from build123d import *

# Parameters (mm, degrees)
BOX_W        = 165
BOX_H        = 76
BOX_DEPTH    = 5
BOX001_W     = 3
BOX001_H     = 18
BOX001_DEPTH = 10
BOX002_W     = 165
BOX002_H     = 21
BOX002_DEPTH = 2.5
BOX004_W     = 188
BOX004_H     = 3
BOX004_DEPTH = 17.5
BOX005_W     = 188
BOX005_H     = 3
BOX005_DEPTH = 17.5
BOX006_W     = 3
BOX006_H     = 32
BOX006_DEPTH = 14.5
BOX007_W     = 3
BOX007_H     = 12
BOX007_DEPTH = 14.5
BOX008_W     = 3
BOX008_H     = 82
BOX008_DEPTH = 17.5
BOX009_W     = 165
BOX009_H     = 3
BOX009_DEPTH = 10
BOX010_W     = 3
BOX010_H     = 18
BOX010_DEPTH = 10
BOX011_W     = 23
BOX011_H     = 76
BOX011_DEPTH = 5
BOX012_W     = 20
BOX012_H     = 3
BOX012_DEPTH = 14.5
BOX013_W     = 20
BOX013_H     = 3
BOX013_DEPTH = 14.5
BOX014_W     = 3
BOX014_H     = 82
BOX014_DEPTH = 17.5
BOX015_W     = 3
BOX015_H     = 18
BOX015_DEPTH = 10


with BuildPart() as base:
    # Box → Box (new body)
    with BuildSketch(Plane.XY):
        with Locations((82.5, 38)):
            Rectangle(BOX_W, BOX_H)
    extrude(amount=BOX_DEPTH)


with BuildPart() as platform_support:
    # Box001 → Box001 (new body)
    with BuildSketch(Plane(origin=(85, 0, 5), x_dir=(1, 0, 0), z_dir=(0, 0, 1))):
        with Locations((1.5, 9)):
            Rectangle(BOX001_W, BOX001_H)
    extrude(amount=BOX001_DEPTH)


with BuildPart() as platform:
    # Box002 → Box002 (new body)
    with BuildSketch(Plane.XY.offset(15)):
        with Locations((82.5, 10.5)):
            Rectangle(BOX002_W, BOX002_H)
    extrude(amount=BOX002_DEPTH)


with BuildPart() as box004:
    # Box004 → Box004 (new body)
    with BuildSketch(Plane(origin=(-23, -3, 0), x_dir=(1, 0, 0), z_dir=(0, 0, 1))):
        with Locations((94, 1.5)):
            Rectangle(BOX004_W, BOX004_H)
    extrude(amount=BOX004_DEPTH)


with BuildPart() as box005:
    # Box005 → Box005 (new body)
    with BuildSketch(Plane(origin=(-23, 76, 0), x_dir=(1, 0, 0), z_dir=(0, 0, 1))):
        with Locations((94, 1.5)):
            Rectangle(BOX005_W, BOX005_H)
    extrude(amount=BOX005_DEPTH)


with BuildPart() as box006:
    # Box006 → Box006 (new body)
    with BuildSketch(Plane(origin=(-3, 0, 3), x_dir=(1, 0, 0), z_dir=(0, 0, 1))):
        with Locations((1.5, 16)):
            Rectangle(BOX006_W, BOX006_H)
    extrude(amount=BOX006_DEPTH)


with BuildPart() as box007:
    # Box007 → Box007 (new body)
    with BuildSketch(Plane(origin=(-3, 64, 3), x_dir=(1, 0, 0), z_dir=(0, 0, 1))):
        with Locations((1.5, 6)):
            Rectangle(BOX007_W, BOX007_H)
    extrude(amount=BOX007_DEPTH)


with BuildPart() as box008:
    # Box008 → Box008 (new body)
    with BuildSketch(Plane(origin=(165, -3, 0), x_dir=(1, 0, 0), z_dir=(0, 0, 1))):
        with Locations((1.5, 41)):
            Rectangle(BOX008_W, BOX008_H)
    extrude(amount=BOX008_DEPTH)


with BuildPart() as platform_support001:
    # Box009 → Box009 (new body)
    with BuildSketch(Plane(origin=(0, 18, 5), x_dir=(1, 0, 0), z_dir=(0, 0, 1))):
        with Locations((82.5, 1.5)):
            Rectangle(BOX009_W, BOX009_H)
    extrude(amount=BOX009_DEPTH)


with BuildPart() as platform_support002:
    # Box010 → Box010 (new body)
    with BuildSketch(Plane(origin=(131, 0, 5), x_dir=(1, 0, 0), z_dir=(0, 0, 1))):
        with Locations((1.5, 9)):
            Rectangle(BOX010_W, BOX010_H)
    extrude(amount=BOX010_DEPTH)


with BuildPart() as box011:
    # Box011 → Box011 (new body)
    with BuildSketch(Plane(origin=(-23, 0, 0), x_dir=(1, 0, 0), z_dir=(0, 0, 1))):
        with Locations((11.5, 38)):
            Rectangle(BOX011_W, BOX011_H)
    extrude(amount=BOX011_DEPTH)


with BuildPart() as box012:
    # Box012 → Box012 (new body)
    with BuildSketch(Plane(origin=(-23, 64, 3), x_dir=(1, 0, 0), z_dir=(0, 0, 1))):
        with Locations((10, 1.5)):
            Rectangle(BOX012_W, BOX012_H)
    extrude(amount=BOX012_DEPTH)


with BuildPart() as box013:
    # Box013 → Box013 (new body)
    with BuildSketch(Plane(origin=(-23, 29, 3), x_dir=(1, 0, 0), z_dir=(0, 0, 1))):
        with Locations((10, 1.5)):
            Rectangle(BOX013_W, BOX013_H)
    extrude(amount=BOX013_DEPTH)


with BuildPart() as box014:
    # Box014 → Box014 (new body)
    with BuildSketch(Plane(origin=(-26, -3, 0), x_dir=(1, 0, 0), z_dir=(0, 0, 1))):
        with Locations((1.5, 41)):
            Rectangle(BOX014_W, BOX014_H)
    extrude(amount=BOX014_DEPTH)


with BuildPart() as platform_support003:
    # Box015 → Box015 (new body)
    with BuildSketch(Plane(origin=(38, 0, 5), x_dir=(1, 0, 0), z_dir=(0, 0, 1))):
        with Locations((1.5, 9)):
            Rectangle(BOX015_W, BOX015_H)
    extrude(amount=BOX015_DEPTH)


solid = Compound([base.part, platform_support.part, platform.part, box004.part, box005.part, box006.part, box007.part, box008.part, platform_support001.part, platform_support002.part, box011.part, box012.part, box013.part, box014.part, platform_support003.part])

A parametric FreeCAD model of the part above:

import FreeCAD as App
import Part
import Sketcher
Q = App.Units.Quantity

doc = App.newDocument("Part")
body = doc.addObject("PartDesign::Body", "Body")

sketch1 = body.newObject("Sketcher::SketchObject", "Sketch")
sketch1.AttachmentSupport = (doc.getObject("XY_Plane"), [""])
sketch1.MapMode = "FlatFace"
sketch1.addGeometry([
    Part.LineSegment(App.Vector(0, 76, 0), App.Vector(0, 0, 0)),
    Part.LineSegment(App.Vector(0, 0, 0), App.Vector(165, 0, 0)),
    Part.LineSegment(App.Vector(165, 0, 0), App.Vector(165, 76, 0)),
    Part.LineSegment(App.Vector(165, 76, 0), App.Vector(0, 76, 0)),
], False)
sketch1.addConstraint([
    Sketcher.Constraint("Coincident", 0, 2, 1, 1),
    Sketcher.Constraint("Coincident", 1, 2, 2, 1),
    Sketcher.Constraint("Coincident", 2, 2, 3, 1),
    Sketcher.Constraint("Coincident", 3, 2, 0, 1),
    Sketcher.Constraint("Vertical", 0),
    Sketcher.Constraint("Horizontal", 1),
    Sketcher.Constraint("Vertical", 2),
    Sketcher.Constraint("Horizontal", 3),
    Sketcher.Constraint("Coincident", 0, 2, -1, 1),
    Sketcher.Constraint("DistanceX", 1, 1, 1, 2, Q("165 mm")),
    Sketcher.Constraint("DistanceY", 0, 2, 0, 1, Q("76 mm")),
])
pad1 = body.newObject("PartDesign::Pad", "Pad")
pad1.Profile = sketch1
pad1.Length = 5
body2 = doc.addObject("PartDesign::Body", "Body001")

sketch2 = body2.newObject("Sketcher::SketchObject", "Sketch001")
sketch2.AttachmentSupport = (doc.getObject("XY_Plane001"), [""])
sketch2.MapMode = "FlatFace"
sketch2.AttachmentOffset = App.Placement(App.Vector(0, 0, 5), App.Rotation())
sketch2.addGeometry([
    Part.LineSegment(App.Vector(85, 18, 0), App.Vector(85, 0, 0)),
    Part.LineSegment(App.Vector(85, 0, 0), App.Vector(88, 0, 0)),
    Part.LineSegment(App.Vector(88, 0, 0), App.Vector(88, 18, 0)),
    Part.LineSegment(App.Vector(88, 18, 0), App.Vector(85, 18, 0)),
], False)
sketch2.addConstraint([
    Sketcher.Constraint("Coincident", 0, 2, 1, 1),
    Sketcher.Constraint("Coincident", 1, 2, 2, 1),
    Sketcher.Constraint("Coincident", 2, 2, 3, 1),
    Sketcher.Constraint("Coincident", 3, 2, 0, 1),
    Sketcher.Constraint("Vertical", 0),
    Sketcher.Constraint("Horizontal", 1),
    Sketcher.Constraint("Vertical", 2),
    Sketcher.Constraint("Horizontal", 3),
    Sketcher.Constraint("PointOnObject", 0, 2, -1),
    Sketcher.Constraint("DistanceX", 1, 1, 1, 2, Q("3 mm")),
    Sketcher.Constraint("DistanceY", 0, 2, 0, 1, Q("18 mm")),
    Sketcher.Constraint("DistanceX", -1, 1, 0, 2, Q("85 mm")),
])
pad2 = body2.newObject("PartDesign::Pad", "Pad001")
pad2.Profile = sketch2
pad2.Length = 10
body3 = doc.addObject("PartDesign::Body", "Body002")

sketch3 = body3.newObject("Sketcher::SketchObject", "Sketch002")
sketch3.AttachmentSupport = (doc.getObject("XY_Plane002"), [""])
sketch3.MapMode = "FlatFace"
sketch3.AttachmentOffset = App.Placement(App.Vector(0, 0, 15), App.Rotation())
sketch3.addGeometry([
    Part.LineSegment(App.Vector(0, 21, 0), App.Vector(0, 0, 0)),
    Part.LineSegment(App.Vector(0, 0, 0), App.Vector(165, 0, 0)),
    Part.LineSegment(App.Vector(165, 0, 0), App.Vector(165, 21, 0)),
    Part.LineSegment(App.Vector(165, 21, 0), App.Vector(0, 21, 0)),
], False)
sketch3.addConstraint([
    Sketcher.Constraint("Coincident", 0, 2, 1, 1),
    Sketcher.Constraint("Coincident", 1, 2, 2, 1),
    Sketcher.Constraint("Coincident", 2, 2, 3, 1),
    Sketcher.Constraint("Coincident", 3, 2, 0, 1),
    Sketcher.Constraint("Vertical", 0),
    Sketcher.Constraint("Horizontal", 1),
    Sketcher.Constraint("Vertical", 2),
    Sketcher.Constraint("Horizontal", 3),
    Sketcher.Constraint("Coincident", 0, 2, -1, 1),
    Sketcher.Constraint("DistanceX", 1, 1, 1, 2, Q("165 mm")),
    Sketcher.Constraint("DistanceY", 0, 2, 0, 1, Q("21 mm")),
])
pad3 = body3.newObject("PartDesign::Pad", "Pad002")
pad3.Profile = sketch3
pad3.Length = 2.5
body4 = doc.addObject("PartDesign::Body", "Body003")

sketch4 = body4.newObject("Sketcher::SketchObject", "Sketch003")
sketch4.AttachmentSupport = (doc.getObject("XY_Plane003"), [""])
sketch4.MapMode = "FlatFace"
sketch4.addGeometry([
    Part.LineSegment(App.Vector(-23, 0, 0), App.Vector(-23, -3, 0)),
    Part.LineSegment(App.Vector(-23, -3, 0), App.Vector(165, -3, 0)),
    Part.LineSegment(App.Vector(165, -3, 0), App.Vector(165, 0, 0)),
    Part.LineSegment(App.Vector(165, 0, 0), App.Vector(-23, 0, 0)),
], False)
sketch4.addConstraint([
    Sketcher.Constraint("Coincident", 0, 2, 1, 1),
    Sketcher.Constraint("Coincident", 1, 2, 2, 1),
    Sketcher.Constraint("Coincident", 2, 2, 3, 1),
    Sketcher.Constraint("Coincident", 3, 2, 0, 1),
    Sketcher.Constraint("Vertical", 0),
    Sketcher.Constraint("Horizontal", 1),
    Sketcher.Constraint("Vertical", 2),
    Sketcher.Constraint("Horizontal", 3),
    Sketcher.Constraint("PointOnObject", 2, 2, -1),
    Sketcher.Constraint("DistanceX", 1, 1, 1, 2, Q("188 mm")),
    Sketcher.Constraint("DistanceY", 0, 2, 0, 1, Q("3 mm")),
    Sketcher.Constraint("DistanceX", 0, 2, -1, 1, Q("23 mm")),
])
pad4 = body4.newObject("PartDesign::Pad", "Pad003")
pad4.Profile = sketch4
pad4.Length = 17.5
body5 = doc.addObject("PartDesign::Body", "Body004")

sketch5 = body5.newObject("Sketcher::SketchObject", "Sketch004")
sketch5.AttachmentSupport = (doc.getObject("XY_Plane004"), [""])
sketch5.MapMode = "FlatFace"
sketch5.addGeometry([
    Part.LineSegment(App.Vector(-23, 79, 0), App.Vector(-23, 76, 0)),
    Part.LineSegment(App.Vector(-23, 76, 0), App.Vector(165, 76, 0)),
    Part.LineSegment(App.Vector(165, 76, 0), App.Vector(165, 79, 0)),
    Part.LineSegment(App.Vector(165, 79, 0), App.Vector(-23, 79, 0)),
], False)
sketch5.addConstraint([
    Sketcher.Constraint("Coincident", 0, 2, 1, 1),
    Sketcher.Constraint("Coincident", 1, 2, 2, 1),
    Sketcher.Constraint("Coincident", 2, 2, 3, 1),
    Sketcher.Constraint("Coincident", 3, 2, 0, 1),
    Sketcher.Constraint("Vertical", 0),
    Sketcher.Constraint("Horizontal", 1),
    Sketcher.Constraint("Vertical", 2),
    Sketcher.Constraint("Horizontal", 3),
    Sketcher.Constraint("DistanceX", 1, 1, 1, 2, Q("188 mm")),
    Sketcher.Constraint("DistanceY", 0, 2, 0, 1, Q("3 mm")),
    Sketcher.Constraint("DistanceX", 0, 2, -1, 1, Q("23 mm")),
    Sketcher.Constraint("DistanceY", -1, 1, 0, 2, Q("76 mm")),
])
pad5 = body5.newObject("PartDesign::Pad", "Pad004")
pad5.Profile = sketch5
pad5.Length = 17.5
body6 = doc.addObject("PartDesign::Body", "Body005")

sketch6 = body6.newObject("Sketcher::SketchObject", "Sketch005")
sketch6.AttachmentSupport = (doc.getObject("XY_Plane005"), [""])
sketch6.MapMode = "FlatFace"
sketch6.AttachmentOffset = App.Placement(App.Vector(0, 0, 3), App.Rotation())
sketch6.addGeometry([
    Part.LineSegment(App.Vector(-3, 32, 0), App.Vector(-3, 0, 0)),
    Part.LineSegment(App.Vector(-3, 0, 0), App.Vector(0, 0, 0)),
    Part.LineSegment(App.Vector(0, 0, 0), App.Vector(0, 32, 0)),
    Part.LineSegment(App.Vector(0, 32, 0), App.Vector(-3, 32, 0)),
], False)
sketch6.addConstraint([
    Sketcher.Constraint("Coincident", 0, 2, 1, 1),
    Sketcher.Constraint("Coincident", 1, 2, 2, 1),
    Sketcher.Constraint("Coincident", 2, 2, 3, 1),
    Sketcher.Constraint("Coincident", 3, 2, 0, 1),
    Sketcher.Constraint("Vertical", 0),
    Sketcher.Constraint("Horizontal", 1),
    Sketcher.Constraint("Vertical", 2),
    Sketcher.Constraint("Horizontal", 3),
    Sketcher.Constraint("Coincident", 1, 2, -1, 1),
    Sketcher.Constraint("DistanceX", 1, 1, 1, 2, Q("3 mm")),
    Sketcher.Constraint("DistanceY", 0, 2, 0, 1, Q("32 mm")),
])
pad6 = body6.newObject("PartDesign::Pad", "Pad005")
pad6.Profile = sketch6
pad6.Length = 14.5
body7 = doc.addObject("PartDesign::Body", "Body006")

sketch7 = body7.newObject("Sketcher::SketchObject", "Sketch006")
sketch7.AttachmentSupport = (doc.getObject("XY_Plane006"), [""])
sketch7.MapMode = "FlatFace"
sketch7.AttachmentOffset = App.Placement(App.Vector(0, 0, 3), App.Rotation())
sketch7.addGeometry([
    Part.LineSegment(App.Vector(-3, 76, 0), App.Vector(-3, 64, 0)),
    Part.LineSegment(App.Vector(-3, 64, 0), App.Vector(0, 64, 0)),
    Part.LineSegment(App.Vector(0, 64, 0), App.Vector(0, 76, 0)),
    Part.LineSegment(App.Vector(0, 76, 0), App.Vector(-3, 76, 0)),
], False)
sketch7.addConstraint([
    Sketcher.Constraint("Coincident", 0, 2, 1, 1),
    Sketcher.Constraint("Coincident", 1, 2, 2, 1),
    Sketcher.Constraint("Coincident", 2, 2, 3, 1),
    Sketcher.Constraint("Coincident", 3, 2, 0, 1),
    Sketcher.Constraint("Vertical", 0),
    Sketcher.Constraint("Horizontal", 1),
    Sketcher.Constraint("Vertical", 2),
    Sketcher.Constraint("Horizontal", 3),
    Sketcher.Constraint("PointOnObject", 1, 2, -2),
    Sketcher.Constraint("DistanceX", 1, 1, 1, 2, Q("3 mm")),
    Sketcher.Constraint("DistanceY", 0, 2, 0, 1, Q("12 mm")),
    Sketcher.Constraint("DistanceY", -1, 1, 0, 2, Q("64 mm")),
])
pad7 = body7.newObject("PartDesign::Pad", "Pad006")
pad7.Profile = sketch7
pad7.Length = 14.5
body8 = doc.addObject("PartDesign::Body", "Body007")

sketch8 = body8.newObject("Sketcher::SketchObject", "Sketch007")
sketch8.AttachmentSupport = (doc.getObject("XY_Plane007"), [""])
sketch8.MapMode = "FlatFace"
sketch8.addGeometry([
    Part.LineSegment(App.Vector(165, 79, 0), App.Vector(165, -3, 0)),
    Part.LineSegment(App.Vector(165, -3, 0), App.Vector(168, -3, 0)),
    Part.LineSegment(App.Vector(168, -3, 0), App.Vector(168, 79, 0)),
    Part.LineSegment(App.Vector(168, 79, 0), App.Vector(165, 79, 0)),
], False)
sketch8.addConstraint([
    Sketcher.Constraint("Coincident", 0, 2, 1, 1),
    Sketcher.Constraint("Coincident", 1, 2, 2, 1),
    Sketcher.Constraint("Coincident", 2, 2, 3, 1),
    Sketcher.Constraint("Coincident", 3, 2, 0, 1),
    Sketcher.Constraint("Vertical", 0),
    Sketcher.Constraint("Horizontal", 1),
    Sketcher.Constraint("Vertical", 2),
    Sketcher.Constraint("Horizontal", 3),
    Sketcher.Constraint("DistanceX", 1, 1, 1, 2, Q("3 mm")),
    Sketcher.Constraint("DistanceY", 0, 2, 0, 1, Q("82 mm")),
    Sketcher.Constraint("DistanceX", -1, 1, 0, 2, Q("165 mm")),
    Sketcher.Constraint("DistanceY", 0, 2, -1, 1, Q("3 mm")),
])
pad8 = body8.newObject("PartDesign::Pad", "Pad007")
pad8.Profile = sketch8
pad8.Length = 17.5
body9 = doc.addObject("PartDesign::Body", "Body008")

sketch9 = body9.newObject("Sketcher::SketchObject", "Sketch008")
sketch9.AttachmentSupport = (doc.getObject("XY_Plane008"), [""])
sketch9.MapMode = "FlatFace"
sketch9.AttachmentOffset = App.Placement(App.Vector(0, 0, 5), App.Rotation())
sketch9.addGeometry([
    Part.LineSegment(App.Vector(0, 21, 0), App.Vector(0, 18, 0)),
    Part.LineSegment(App.Vector(0, 18, 0), App.Vector(165, 18, 0)),
    Part.LineSegment(App.Vector(165, 18, 0), App.Vector(165, 21, 0)),
    Part.LineSegment(App.Vector(165, 21, 0), App.Vector(0, 21, 0)),
], False)
sketch9.addConstraint([
    Sketcher.Constraint("Coincident", 0, 2, 1, 1),
    Sketcher.Constraint("Coincident", 1, 2, 2, 1),
    Sketcher.Constraint("Coincident", 2, 2, 3, 1),
    Sketcher.Constraint("Coincident", 3, 2, 0, 1),
    Sketcher.Constraint("Vertical", 0),
    Sketcher.Constraint("Horizontal", 1),
    Sketcher.Constraint("Vertical", 2),
    Sketcher.Constraint("Horizontal", 3),
    Sketcher.Constraint("PointOnObject", 0, 2, -2),
    Sketcher.Constraint("DistanceX", 1, 1, 1, 2, Q("165 mm")),
    Sketcher.Constraint("DistanceY", 0, 2, 0, 1, Q("3 mm")),
    Sketcher.Constraint("DistanceY", -1, 1, 0, 2, Q("18 mm")),
])
pad9 = body9.newObject("PartDesign::Pad", "Pad008")
pad9.Profile = sketch9
pad9.Length = 10
body10 = doc.addObject("PartDesign::Body", "Body009")

sketch10 = body10.newObject("Sketcher::SketchObject", "Sketch009")
sketch10.AttachmentSupport = (doc.getObject("XY_Plane009"), [""])
sketch10.MapMode = "FlatFace"
sketch10.AttachmentOffset = App.Placement(App.Vector(0, 0, 5), App.Rotation())
sketch10.addGeometry([
    Part.LineSegment(App.Vector(131, 18, 0), App.Vector(131, 0, 0)),
    Part.LineSegment(App.Vector(131, 0, 0), App.Vector(134, 0, 0)),
    Part.LineSegment(App.Vector(134, 0, 0), App.Vector(134, 18, 0)),
    Part.LineSegment(App.Vector(134, 18, 0), App.Vector(131, 18, 0)),
], False)
sketch10.addConstraint([
    Sketcher.Constraint("Coincident", 0, 2, 1, 1),
    Sketcher.Constraint("Coincident", 1, 2, 2, 1),
    Sketcher.Constraint("Coincident", 2, 2, 3, 1),
    Sketcher.Constraint("Coincident", 3, 2, 0, 1),
    Sketcher.Constraint("Vertical", 0),
    Sketcher.Constraint("Horizontal", 1),
    Sketcher.Constraint("Vertical", 2),
    Sketcher.Constraint("Horizontal", 3),
    Sketcher.Constraint("PointOnObject", 0, 2, -1),
    Sketcher.Constraint("DistanceX", 1, 1, 1, 2, Q("3 mm")),
    Sketcher.Constraint("DistanceY", 0, 2, 0, 1, Q("18 mm")),
    Sketcher.Constraint("DistanceX", -1, 1, 0, 2, Q("131 mm")),
])
pad10 = body10.newObject("PartDesign::Pad", "Pad009")
pad10.Profile = sketch10
pad10.Length = 10
body11 = doc.addObject("PartDesign::Body", "Body010")

sketch11 = body11.newObject("Sketcher::SketchObject", "Sketch010")
sketch11.AttachmentSupport = (doc.getObject("XY_Plane010"), [""])
sketch11.MapMode = "FlatFace"
sketch11.addGeometry([
    Part.LineSegment(App.Vector(-23, 76, 0), App.Vector(-23, 0, 0)),
    Part.LineSegment(App.Vector(-23, 0, 0), App.Vector(0, 0, 0)),
    Part.LineSegment(App.Vector(0, 0, 0), App.Vector(0, 76, 0)),
    Part.LineSegment(App.Vector(0, 76, 0), App.Vector(-23, 76, 0)),
], False)
sketch11.addConstraint([
    Sketcher.Constraint("Coincident", 0, 2, 1, 1),
    Sketcher.Constraint("Coincident", 1, 2, 2, 1),
    Sketcher.Constraint("Coincident", 2, 2, 3, 1),
    Sketcher.Constraint("Coincident", 3, 2, 0, 1),
    Sketcher.Constraint("Vertical", 0),
    Sketcher.Constraint("Horizontal", 1),
    Sketcher.Constraint("Vertical", 2),
    Sketcher.Constraint("Horizontal", 3),
    Sketcher.Constraint("Coincident", 1, 2, -1, 1),
    Sketcher.Constraint("DistanceX", 1, 1, 1, 2, Q("23 mm")),
    Sketcher.Constraint("DistanceY", 0, 2, 0, 1, Q("76 mm")),
])
pad11 = body11.newObject("PartDesign::Pad", "Pad010")
pad11.Profile = sketch11
pad11.Length = 5
body12 = doc.addObject("PartDesign::Body", "Body011")

sketch12 = body12.newObject("Sketcher::SketchObject", "Sketch011")
sketch12.AttachmentSupport = (doc.getObject("XY_Plane011"), [""])
sketch12.MapMode = "FlatFace"
sketch12.AttachmentOffset = App.Placement(App.Vector(0, 0, 3), App.Rotation())
sketch12.addGeometry([
    Part.LineSegment(App.Vector(-23, 67, 0), App.Vector(-23, 64, 0)),
    Part.LineSegment(App.Vector(-23, 64, 0), App.Vector(-3, 64, 0)),
    Part.LineSegment(App.Vector(-3, 64, 0), App.Vector(-3, 67, 0)),
    Part.LineSegment(App.Vector(-3, 67, 0), App.Vector(-23, 67, 0)),
], False)
sketch12.addConstraint([
    Sketcher.Constraint("Coincident", 0, 2, 1, 1),
    Sketcher.Constraint("Coincident", 1, 2, 2, 1),
    Sketcher.Constraint("Coincident", 2, 2, 3, 1),
    Sketcher.Constraint("Coincident", 3, 2, 0, 1),
    Sketcher.Constraint("Vertical", 0),
    Sketcher.Constraint("Horizontal", 1),
    Sketcher.Constraint("Vertical", 2),
    Sketcher.Constraint("Horizontal", 3),
    Sketcher.Constraint("DistanceX", 1, 1, 1, 2, Q("20 mm")),
    Sketcher.Constraint("DistanceY", 0, 2, 0, 1, Q("3 mm")),
    Sketcher.Constraint("DistanceX", 0, 2, -1, 1, Q("23 mm")),
    Sketcher.Constraint("DistanceY", -1, 1, 0, 2, Q("64 mm")),
])
pad12 = body12.newObject("PartDesign::Pad", "Pad011")
pad12.Profile = sketch12
pad12.Length = 14.5
body13 = doc.addObject("PartDesign::Body", "Body012")

sketch13 = body13.newObject("Sketcher::SketchObject", "Sketch012")
sketch13.AttachmentSupport = (doc.getObject("XY_Plane012"), [""])
sketch13.MapMode = "FlatFace"
sketch13.AttachmentOffset = App.Placement(App.Vector(0, 0, 3), App.Rotation())
sketch13.addGeometry([
    Part.LineSegment(App.Vector(-23, 32, 0), App.Vector(-23, 29, 0)),
    Part.LineSegment(App.Vector(-23, 29, 0), App.Vector(-3, 29, 0)),
    Part.LineSegment(App.Vector(-3, 29, 0), App.Vector(-3, 32, 0)),
    Part.LineSegment(App.Vector(-3, 32, 0), App.Vector(-23, 32, 0)),
], False)
sketch13.addConstraint([
    Sketcher.Constraint("Coincident", 0, 2, 1, 1),
    Sketcher.Constraint("Coincident", 1, 2, 2, 1),
    Sketcher.Constraint("Coincident", 2, 2, 3, 1),
    Sketcher.Constraint("Coincident", 3, 2, 0, 1),
    Sketcher.Constraint("Vertical", 0),
    Sketcher.Constraint("Horizontal", 1),
    Sketcher.Constraint("Vertical", 2),
    Sketcher.Constraint("Horizontal", 3),
    Sketcher.Constraint("DistanceX", 1, 1, 1, 2, Q("20 mm")),
    Sketcher.Constraint("DistanceY", 0, 2, 0, 1, Q("3 mm")),
    Sketcher.Constraint("DistanceX", 0, 2, -1, 1, Q("23 mm")),
    Sketcher.Constraint("DistanceY", -1, 1, 0, 2, Q("29 mm")),
])
pad13 = body13.newObject("PartDesign::Pad", "Pad012")
pad13.Profile = sketch13
pad13.Length = 14.5
body14 = doc.addObject("PartDesign::Body", "Body013")

sketch14 = body14.newObject("Sketcher::SketchObject", "Sketch013")
sketch14.AttachmentSupport = (doc.getObject("XY_Plane013"), [""])
sketch14.MapMode = "FlatFace"
sketch14.addGeometry([
    Part.LineSegment(App.Vector(-26, 79, 0), App.Vector(-26, -3, 0)),
    Part.LineSegment(App.Vector(-26, -3, 0), App.Vector(-23, -3, 0)),
    Part.LineSegment(App.Vector(-23, -3, 0), App.Vector(-23, 79, 0)),
    Part.LineSegment(App.Vector(-23, 79, 0), App.Vector(-26, 79, 0)),
], False)
sketch14.addConstraint([
    Sketcher.Constraint("Coincident", 0, 2, 1, 1),
    Sketcher.Constraint("Coincident", 1, 2, 2, 1),
    Sketcher.Constraint("Coincident", 2, 2, 3, 1),
    Sketcher.Constraint("Coincident", 3, 2, 0, 1),
    Sketcher.Constraint("Vertical", 0),
    Sketcher.Constraint("Horizontal", 1),
    Sketcher.Constraint("Vertical", 2),
    Sketcher.Constraint("Horizontal", 3),
    Sketcher.Constraint("DistanceX", 1, 1, 1, 2, Q("3 mm")),
    Sketcher.Constraint("DistanceY", 0, 2, 0, 1, Q("82 mm")),
    Sketcher.Constraint("DistanceX", 0, 2, -1, 1, Q("26 mm")),
    Sketcher.Constraint("DistanceY", 0, 2, -1, 1, Q("3 mm")),
])
pad14 = body14.newObject("PartDesign::Pad", "Pad013")
pad14.Profile = sketch14
pad14.Length = 17.5
body15 = doc.addObject("PartDesign::Body", "Body014")

sketch15 = body15.newObject("Sketcher::SketchObject", "Sketch014")
sketch15.AttachmentSupport = (doc.getObject("XY_Plane014"), [""])
sketch15.MapMode = "FlatFace"
sketch15.AttachmentOffset = App.Placement(App.Vector(0, 0, 5), App.Rotation())
sketch15.addGeometry([
    Part.LineSegment(App.Vector(38, 18, 0), App.Vector(38, 0, 0)),
    Part.LineSegment(App.Vector(38, 0, 0), App.Vector(41, 0, 0)),
    Part.LineSegment(App.Vector(41, 0, 0), App.Vector(41, 18, 0)),
    Part.LineSegment(App.Vector(41, 18, 0), App.Vector(38, 18, 0)),
], False)
sketch15.addConstraint([
    Sketcher.Constraint("Coincident", 0, 2, 1, 1),
    Sketcher.Constraint("Coincident", 1, 2, 2, 1),
    Sketcher.Constraint("Coincident", 2, 2, 3, 1),
    Sketcher.Constraint("Coincident", 3, 2, 0, 1),
    Sketcher.Constraint("Vertical", 0),
    Sketcher.Constraint("Horizontal", 1),
    Sketcher.Constraint("Vertical", 2),
    Sketcher.Constraint("Horizontal", 3),
    Sketcher.Constraint("PointOnObject", 0, 2, -1),
    Sketcher.Constraint("DistanceX", 1, 1, 1, 2, Q("3 mm")),
    Sketcher.Constraint("DistanceY", 0, 2, 0, 1, Q("18 mm")),
    Sketcher.Constraint("DistanceX", -1, 1, 0, 2, Q("38 mm")),
])
pad15 = body15.newObject("PartDesign::Pad", "Pad014")
pad15.Profile = sketch15
pad15.Length = 10

doc.recompute()
